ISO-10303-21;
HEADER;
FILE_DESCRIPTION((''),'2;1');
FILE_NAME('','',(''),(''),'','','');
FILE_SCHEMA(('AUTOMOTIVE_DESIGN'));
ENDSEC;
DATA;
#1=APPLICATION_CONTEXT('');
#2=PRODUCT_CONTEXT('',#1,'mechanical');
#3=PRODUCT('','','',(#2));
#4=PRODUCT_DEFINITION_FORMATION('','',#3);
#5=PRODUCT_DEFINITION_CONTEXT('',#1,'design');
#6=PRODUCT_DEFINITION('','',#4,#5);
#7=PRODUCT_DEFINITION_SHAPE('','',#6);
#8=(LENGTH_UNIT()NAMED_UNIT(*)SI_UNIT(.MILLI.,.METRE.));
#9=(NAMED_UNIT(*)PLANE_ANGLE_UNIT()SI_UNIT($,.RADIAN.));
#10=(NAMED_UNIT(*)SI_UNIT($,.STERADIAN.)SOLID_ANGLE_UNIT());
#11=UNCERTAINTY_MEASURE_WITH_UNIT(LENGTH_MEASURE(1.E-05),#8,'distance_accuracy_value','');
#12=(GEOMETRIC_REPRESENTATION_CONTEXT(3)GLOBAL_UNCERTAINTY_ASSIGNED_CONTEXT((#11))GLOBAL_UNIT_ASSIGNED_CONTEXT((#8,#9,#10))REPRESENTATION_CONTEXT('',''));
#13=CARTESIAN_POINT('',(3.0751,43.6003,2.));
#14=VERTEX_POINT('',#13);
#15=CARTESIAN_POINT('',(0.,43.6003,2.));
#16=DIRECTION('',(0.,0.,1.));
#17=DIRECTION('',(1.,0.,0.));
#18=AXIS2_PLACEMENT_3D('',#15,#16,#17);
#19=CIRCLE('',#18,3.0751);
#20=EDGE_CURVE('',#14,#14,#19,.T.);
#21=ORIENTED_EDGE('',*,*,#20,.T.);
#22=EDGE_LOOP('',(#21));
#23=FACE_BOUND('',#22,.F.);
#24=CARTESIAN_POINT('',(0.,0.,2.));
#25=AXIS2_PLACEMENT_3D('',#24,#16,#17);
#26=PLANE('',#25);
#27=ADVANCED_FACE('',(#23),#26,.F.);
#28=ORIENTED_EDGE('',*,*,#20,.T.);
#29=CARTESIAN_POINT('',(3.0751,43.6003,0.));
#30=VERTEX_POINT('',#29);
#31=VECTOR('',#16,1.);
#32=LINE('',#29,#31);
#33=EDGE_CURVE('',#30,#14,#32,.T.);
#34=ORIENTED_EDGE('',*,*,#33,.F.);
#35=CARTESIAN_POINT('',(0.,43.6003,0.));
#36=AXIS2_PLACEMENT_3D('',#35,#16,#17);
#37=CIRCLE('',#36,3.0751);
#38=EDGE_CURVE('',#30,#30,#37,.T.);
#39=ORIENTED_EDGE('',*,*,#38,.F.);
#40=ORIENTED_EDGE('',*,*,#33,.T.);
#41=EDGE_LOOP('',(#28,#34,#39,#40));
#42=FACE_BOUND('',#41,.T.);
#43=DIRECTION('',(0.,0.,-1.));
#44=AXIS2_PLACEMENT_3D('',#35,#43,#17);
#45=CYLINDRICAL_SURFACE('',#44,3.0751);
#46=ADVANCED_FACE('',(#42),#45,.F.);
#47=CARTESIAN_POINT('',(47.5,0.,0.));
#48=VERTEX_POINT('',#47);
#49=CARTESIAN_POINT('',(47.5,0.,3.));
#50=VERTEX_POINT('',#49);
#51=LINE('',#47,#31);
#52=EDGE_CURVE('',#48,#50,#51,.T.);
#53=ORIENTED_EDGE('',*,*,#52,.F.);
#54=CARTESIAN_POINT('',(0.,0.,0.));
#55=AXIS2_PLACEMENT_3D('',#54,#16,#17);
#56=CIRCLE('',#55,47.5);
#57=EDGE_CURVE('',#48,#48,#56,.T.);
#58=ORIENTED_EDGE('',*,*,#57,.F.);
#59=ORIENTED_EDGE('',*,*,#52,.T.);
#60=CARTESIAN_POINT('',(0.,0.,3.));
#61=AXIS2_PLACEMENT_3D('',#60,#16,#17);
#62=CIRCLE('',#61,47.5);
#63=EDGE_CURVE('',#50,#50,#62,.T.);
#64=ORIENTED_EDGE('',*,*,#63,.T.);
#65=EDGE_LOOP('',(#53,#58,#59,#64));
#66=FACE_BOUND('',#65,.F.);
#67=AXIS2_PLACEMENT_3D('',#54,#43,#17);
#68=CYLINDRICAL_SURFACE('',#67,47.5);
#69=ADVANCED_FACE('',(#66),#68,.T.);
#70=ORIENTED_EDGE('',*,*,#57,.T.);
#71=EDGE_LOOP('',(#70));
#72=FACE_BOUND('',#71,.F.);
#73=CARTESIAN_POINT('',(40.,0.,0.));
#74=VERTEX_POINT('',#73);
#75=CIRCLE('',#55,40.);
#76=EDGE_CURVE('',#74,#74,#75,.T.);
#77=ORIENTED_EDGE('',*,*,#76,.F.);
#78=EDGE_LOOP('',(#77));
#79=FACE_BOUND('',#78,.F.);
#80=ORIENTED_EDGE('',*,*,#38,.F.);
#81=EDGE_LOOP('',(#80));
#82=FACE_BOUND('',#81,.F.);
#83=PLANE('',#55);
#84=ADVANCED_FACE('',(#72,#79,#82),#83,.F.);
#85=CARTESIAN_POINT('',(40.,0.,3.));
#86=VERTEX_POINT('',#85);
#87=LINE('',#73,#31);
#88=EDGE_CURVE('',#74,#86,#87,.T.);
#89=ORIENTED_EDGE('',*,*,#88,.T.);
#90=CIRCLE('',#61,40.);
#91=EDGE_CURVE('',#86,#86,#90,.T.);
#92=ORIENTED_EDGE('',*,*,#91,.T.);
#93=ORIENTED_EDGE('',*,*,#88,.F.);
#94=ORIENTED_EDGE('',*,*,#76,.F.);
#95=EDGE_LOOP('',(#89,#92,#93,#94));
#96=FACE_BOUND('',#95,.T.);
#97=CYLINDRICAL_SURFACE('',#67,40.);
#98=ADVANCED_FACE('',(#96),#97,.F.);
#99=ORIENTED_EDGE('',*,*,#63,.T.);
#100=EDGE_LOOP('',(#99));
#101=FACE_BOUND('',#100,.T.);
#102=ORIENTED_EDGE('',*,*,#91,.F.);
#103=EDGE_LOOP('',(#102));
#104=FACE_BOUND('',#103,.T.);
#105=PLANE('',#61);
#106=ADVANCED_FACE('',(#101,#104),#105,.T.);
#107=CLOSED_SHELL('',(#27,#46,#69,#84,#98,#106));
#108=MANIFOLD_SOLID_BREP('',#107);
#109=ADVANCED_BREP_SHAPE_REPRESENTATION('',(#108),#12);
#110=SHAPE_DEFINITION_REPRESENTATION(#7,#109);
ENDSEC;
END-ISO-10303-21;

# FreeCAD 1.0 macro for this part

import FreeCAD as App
import Part
import Sketcher
from FreeCAD import Vector
Q = App.Units.Quantity

doc = App.newDocument("Part")
params = doc.addObject("Spreadsheet::Sheet", "Params")
for row, (alias, value) in enumerate([
    ("sketch1_diameter", "95 mm"),
    ("sketch1_diameter2", "80 mm"),
    ("pad1_length", "3 mm"),
    ("pocket1_length", "2 mm"),
], start=1):
    params.set(f"A{row}", alias)
    params.set(f"B{row}", "=" + value)
    params.setAlias(f"B{row}", alias)

body = doc.addObject("PartDesign::Body", "Body")

# Sketch on XY plane
sketch1 = doc.addObject("Sketcher::SketchObject", "Sketch")
body.addObject(sketch1)
sketch1.AttachmentSupport = (doc.XY_Plane, [""])
sketch1.MapMode = "FlatFace"
sketch1.addGeometry([
    Part.Circle(Vector(0, 0, 0), Vector(0, 0, 1), 47.5),
    Part.Circle(Vector(0, 0, 0), Vector(0, 0, 1), 40),
], False)
sketch1.addConstraint([
    Sketcher.Constraint("Coincident", 0, 3, -1, 1),
    Sketcher.Constraint("Coincident", 1, 3, -1, 1),
    Sketcher.Constraint("Diameter", 0, Q("95 mm")),
    Sketcher.Constraint("Diameter", 1, Q("80 mm")),
])
sketch1.setExpression("Constraints[2]", "Params.sketch1_diameter")
sketch1.setExpression("Constraints[3]", "Params.sketch1_diameter2")
pad1 = doc.addObject("PartDesign::Pad", "Pad")
body.addObject(pad1)
pad1.Profile = sketch1
pad1.setExpression("Length", "Params.pad1_length")

# Sketch on XY plane
sketch2 = doc.addObject("Sketcher::SketchObject", "Sketch001")
body.addObject(sketch2)
sketch2.AttachmentSupport = (doc.XY_Plane, [""])
sketch2.MapMode = "FlatFace"
sketch2.addGeometry(Part.Circle(Vector(0, 43.6003, 0), Vector(0, 0, 1), 3.0751), False)
sketch2.addConstraint([
    Sketcher.Constraint("PointOnObject", 0, 3, -2),
    Sketcher.Constraint("Diameter", 0, Q("6.1502 mm")),
    Sketcher.Constraint("DistanceY", -1, 1, 0, 3, Q("43.6003 mm")),
])
pocket1 = doc.addObject("PartDesign::Pocket", "Pocket")
body.addObject(pocket1)
pocket1.Profile = sketch2
pocket1.setExpression("Length", "Params.pocket1_length")
pocket1.Reversed = True

doc.recompute()
